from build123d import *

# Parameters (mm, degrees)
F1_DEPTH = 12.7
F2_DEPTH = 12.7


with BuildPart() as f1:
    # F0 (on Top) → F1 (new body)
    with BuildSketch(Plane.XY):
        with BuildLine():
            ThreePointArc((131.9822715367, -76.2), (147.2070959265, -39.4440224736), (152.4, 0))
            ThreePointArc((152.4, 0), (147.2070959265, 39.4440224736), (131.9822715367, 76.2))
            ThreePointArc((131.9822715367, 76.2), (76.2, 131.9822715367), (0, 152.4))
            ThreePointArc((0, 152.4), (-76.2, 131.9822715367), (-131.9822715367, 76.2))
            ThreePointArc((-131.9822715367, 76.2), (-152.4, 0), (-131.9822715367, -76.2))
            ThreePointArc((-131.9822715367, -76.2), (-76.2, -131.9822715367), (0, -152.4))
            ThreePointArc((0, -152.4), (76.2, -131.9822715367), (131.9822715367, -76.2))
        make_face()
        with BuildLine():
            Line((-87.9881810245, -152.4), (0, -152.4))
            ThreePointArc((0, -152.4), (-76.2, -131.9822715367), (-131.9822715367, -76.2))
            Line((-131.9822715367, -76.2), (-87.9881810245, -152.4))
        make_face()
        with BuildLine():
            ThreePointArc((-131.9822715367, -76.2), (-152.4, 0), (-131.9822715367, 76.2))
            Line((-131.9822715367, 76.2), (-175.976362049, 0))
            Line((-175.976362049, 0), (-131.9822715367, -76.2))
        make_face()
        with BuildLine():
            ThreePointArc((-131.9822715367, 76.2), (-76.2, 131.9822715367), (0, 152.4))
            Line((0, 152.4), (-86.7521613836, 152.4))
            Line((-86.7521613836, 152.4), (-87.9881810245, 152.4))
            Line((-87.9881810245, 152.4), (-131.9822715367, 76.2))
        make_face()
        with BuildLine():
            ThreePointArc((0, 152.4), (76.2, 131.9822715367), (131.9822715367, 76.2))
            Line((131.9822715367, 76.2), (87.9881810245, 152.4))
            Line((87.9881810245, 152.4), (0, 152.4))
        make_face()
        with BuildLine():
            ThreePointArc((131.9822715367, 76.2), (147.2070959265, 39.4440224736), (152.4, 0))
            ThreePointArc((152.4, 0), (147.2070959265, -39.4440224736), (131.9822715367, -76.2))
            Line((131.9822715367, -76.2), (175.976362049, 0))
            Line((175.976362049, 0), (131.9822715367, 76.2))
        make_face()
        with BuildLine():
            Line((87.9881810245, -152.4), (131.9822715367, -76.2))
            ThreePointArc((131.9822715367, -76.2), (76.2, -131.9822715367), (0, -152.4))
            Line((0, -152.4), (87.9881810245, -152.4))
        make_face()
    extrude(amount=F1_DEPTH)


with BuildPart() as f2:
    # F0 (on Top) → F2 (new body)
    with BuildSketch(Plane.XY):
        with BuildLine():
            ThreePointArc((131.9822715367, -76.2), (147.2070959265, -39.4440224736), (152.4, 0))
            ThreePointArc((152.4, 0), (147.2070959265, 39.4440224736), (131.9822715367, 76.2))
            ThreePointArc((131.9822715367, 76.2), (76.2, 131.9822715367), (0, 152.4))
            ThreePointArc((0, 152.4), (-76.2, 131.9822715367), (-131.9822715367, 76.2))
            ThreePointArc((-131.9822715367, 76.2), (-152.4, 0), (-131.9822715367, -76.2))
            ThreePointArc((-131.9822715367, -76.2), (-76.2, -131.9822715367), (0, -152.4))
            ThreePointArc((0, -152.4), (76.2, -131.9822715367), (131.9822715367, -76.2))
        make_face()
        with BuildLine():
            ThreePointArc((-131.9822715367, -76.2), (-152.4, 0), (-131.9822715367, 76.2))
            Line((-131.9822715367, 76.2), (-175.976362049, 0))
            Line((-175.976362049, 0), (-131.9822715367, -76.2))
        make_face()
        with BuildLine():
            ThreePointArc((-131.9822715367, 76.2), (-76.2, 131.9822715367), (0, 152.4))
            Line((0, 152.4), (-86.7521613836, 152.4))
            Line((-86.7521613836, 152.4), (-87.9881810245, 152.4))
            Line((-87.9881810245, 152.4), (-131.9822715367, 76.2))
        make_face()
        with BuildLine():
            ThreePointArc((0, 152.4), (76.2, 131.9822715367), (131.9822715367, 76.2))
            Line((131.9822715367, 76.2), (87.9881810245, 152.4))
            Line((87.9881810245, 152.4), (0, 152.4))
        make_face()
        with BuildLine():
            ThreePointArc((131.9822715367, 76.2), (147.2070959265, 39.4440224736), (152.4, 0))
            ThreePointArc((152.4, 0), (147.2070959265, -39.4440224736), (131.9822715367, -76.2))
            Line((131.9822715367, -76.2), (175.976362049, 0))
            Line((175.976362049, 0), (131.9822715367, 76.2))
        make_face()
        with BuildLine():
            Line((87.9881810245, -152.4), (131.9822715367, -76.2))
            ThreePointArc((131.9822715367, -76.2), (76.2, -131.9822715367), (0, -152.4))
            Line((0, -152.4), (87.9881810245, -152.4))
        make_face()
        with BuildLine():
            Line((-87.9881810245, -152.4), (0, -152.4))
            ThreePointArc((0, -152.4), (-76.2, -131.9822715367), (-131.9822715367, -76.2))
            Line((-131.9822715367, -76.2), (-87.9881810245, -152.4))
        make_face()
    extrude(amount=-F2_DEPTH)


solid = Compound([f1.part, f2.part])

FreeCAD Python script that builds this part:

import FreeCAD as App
import Part
import Sketcher
from FreeCAD import Vector
Q = App.Units.Quantity


def add_polygon(sketch, points):
    """Adds a closed chain of lines whose ends are joined by coincident constraints."""
    first, n = sketch.GeometryCount, len(points)
    for a, b in zip(points, points[1:] + points[:1]):
        sketch.addGeometry(Part.LineSegment(App.Vector(*a, 0), App.Vector(*b, 0)), False)
    for i in range(n):
        sketch.addConstraint(Sketcher.Constraint("Coincident", first + i, 2, first + (i + 1) % n, 1))

doc = App.newDocument("Part")
body = doc.addObject("PartDesign::Body", "Body")

# Sketch on XY plane
sketch1 = body.newObject("Sketcher::SketchObject", "Sketch")
sketch1.AttachmentSupport = (doc.getObject("XY_Plane"), [""])
sketch1.MapMode = "FlatFace"
add_polygon(sketch1, [(88, 152), (-88, 152), (-176, 0), (-88, -152), (88, -152), (176, 0)])  # lines 0-5
sketch1.addConstraint(Sketcher.Constraint("Horizontal", 0))
sketch1.addConstraint(Sketcher.Constraint("Horizontal", 3))
sketch1.addConstraint(Sketcher.Constraint("Symmetric", 0, 2, 3, 2, -1, 1))
sketch1.addConstraint(Sketcher.Constraint("Symmetric", 1, 2, 4, 2, -1, 1))
sketch1.addConstraint(Sketcher.Constraint("PointOnObject", 1, 2, -1))
sketch1.addConstraint(Sketcher.Constraint("Parallel", 2, 5))
sketch1.addConstraint(Sketcher.Constraint("Vertical", 0, 2, 2, 2))
sketch1.addConstraint(Sketcher.Constraint("DistanceY", -1, 1, 0, 2, Q("6 in")))
sketch1.addConstraint(Sketcher.Constraint("Angle", 1, Q("-120 deg")))
sketch1.addConstraint(Sketcher.Constraint("DistanceX", 0, 2, 0, 1, Q("175.976362 mm")))
pad1 = body.newObject("PartDesign::Pad", "Pad")
pad1.Profile = sketch1
pad1.Length = Q("0.5 in")
body2 = doc.addObject("PartDesign::Body", "Body001")

# Sketch on XY plane
sketch2 = body2.newObject("Sketcher::SketchObject", "Sketch001")
sketch2.AttachmentSupport = (doc.getObject("XY_Plane001"), [""])
sketch2.MapMode = "FlatFace"
add_polygon(sketch2, [(88, 152), (-88, 152), (-176, 0), (-88, -152), (88, -152), (176, 0)])  # lines 0-5
sketch2.addConstraint(Sketcher.Constraint("Horizontal", 0))
sketch2.addConstraint(Sketcher.Constraint("Horizontal", 3))
sketch2.addConstraint(Sketcher.Constraint("Symmetric", 0, 2, 3, 2, -1, 1))
sketch2.addConstraint(Sketcher.Constraint("Symmetric", 1, 2, 4, 2, -1, 1))
sketch2.addConstraint(Sketcher.Constraint("PointOnObject", 1, 2, -1))
sketch2.addConstraint(Sketcher.Constraint("Parallel", 2, 5))
sketch2.addConstraint(Sketcher.Constraint("Vertical", 0, 2, 2, 2))
sketch2.addConstraint(Sketcher.Constraint("DistanceY", -1, 1, 0, 2, Q("6 in")))
sketch2.addConstraint(Sketcher.Constraint("Angle", 1, Q("-120 deg")))
sketch2.addConstraint(Sketcher.Constraint("DistanceX", 0, 2, 0, 1, Q("175.976362 mm")))
pad2 = body2.newObject("PartDesign::Pad", "Pad001")
pad2.Profile = sketch2
pad2.Length = Q("0.5 in")
pad2.Reversed = True

doc.recompute()
